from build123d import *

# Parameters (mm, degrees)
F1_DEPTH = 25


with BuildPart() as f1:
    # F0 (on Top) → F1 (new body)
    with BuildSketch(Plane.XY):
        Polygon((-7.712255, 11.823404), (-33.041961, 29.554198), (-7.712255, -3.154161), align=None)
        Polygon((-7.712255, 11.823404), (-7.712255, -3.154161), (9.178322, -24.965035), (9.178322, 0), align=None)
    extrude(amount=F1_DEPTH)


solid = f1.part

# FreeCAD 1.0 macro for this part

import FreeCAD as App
import Part
import Sketcher

V = App.Vector


def add_polygon(sketch, points):
    """Adds a closed chain of lines whose ends are joined by coincident constraints."""
    first, n = sketch.GeometryCount, len(points)
    for a, b in zip(points, points[1:] + points[:1]):
        sketch.addGeometry(Part.LineSegment(App.Vector(*a, 0), App.Vector(*b, 0)), False)
    for i in range(n):
        sketch.addConstraint(Sketcher.Constraint("Coincident", first + i, 2, first + (i + 1) % n, 1))

doc = App.newDocument("Part")
body = doc.addObject("PartDesign::Body", "Body")

# Sketch on XY plane
sketch1 = body.newObject("Sketcher::SketchObject", "Sketch")
sketch1.AttachmentSupport = (doc.getObject("XY_Plane"), [""])
sketch1.MapMode = "FlatFace"
add_polygon(sketch1, [(-7.712255, 11.823404), (-33.041961, 29.554198), (-7.712255, -3.154161), (9.178322, -24.965035), (9.178322, 0)])  # lines 0-4
sketch1.addConstraint([
    Sketcher.Constraint("Vertical", 3),
    Sketcher.Constraint("PointOnObject", 3, 2, -1),
    Sketcher.Constraint("Parallel", 1, 2),
    Sketcher.Constraint("Parallel", 0, 4),
    Sketcher.Constraint("Vertical", 1, 2, 4, 2),
    Sketcher.Constraint("DistanceY", 3, 1, 3, 2, 24.965035),
    Sketcher.Constraint("DistanceX", 0, 2, -1, 1, 33.041961),
    Sketcher.Constraint("DistanceY", 1, 2, -1, 1, 3.154161),
    Sketcher.Constraint("DistanceY", 1, 2, 0, 2, 32.708359),
    Sketcher.Constraint("Distance", 0, 30.918846),
])
pad1 = body.newObject("PartDesign::Pad", "Pad")
pad1.Profile = sketch1
pad1.Length = 25

doc.recompute()
